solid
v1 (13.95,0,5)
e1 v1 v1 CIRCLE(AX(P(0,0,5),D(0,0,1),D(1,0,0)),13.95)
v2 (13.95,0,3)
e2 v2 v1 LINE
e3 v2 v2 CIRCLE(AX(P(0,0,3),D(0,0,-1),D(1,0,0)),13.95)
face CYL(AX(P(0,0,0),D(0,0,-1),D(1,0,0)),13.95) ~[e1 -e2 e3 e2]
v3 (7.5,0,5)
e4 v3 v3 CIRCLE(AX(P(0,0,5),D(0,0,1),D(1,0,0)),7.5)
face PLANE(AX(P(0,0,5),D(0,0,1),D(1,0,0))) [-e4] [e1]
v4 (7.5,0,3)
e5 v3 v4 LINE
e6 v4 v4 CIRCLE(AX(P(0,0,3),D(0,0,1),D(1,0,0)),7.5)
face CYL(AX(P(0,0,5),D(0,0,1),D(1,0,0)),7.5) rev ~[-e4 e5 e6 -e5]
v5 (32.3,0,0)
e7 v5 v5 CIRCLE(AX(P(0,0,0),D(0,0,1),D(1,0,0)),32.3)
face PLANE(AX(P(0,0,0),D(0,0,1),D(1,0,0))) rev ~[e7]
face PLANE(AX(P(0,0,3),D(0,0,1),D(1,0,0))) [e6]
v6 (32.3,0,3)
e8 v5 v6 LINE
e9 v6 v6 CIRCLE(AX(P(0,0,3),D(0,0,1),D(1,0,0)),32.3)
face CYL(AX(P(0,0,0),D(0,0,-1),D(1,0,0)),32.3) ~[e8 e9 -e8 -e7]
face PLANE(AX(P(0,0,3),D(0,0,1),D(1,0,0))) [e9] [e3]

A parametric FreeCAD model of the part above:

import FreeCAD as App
import Part
import Sketcher
from FreeCAD import Vector
Q = App.Units.Quantity

doc = App.newDocument("Part")
body = doc.addObject("PartDesign::Body", "Body")

# Sketch on XY plane
sketch1 = doc.addObject("Sketcher::SketchObject", "Sketch")
body.addObject(sketch1)
sketch1.AttachmentSupport = (doc.XY_Plane, [""])
sketch1.MapMode = "FlatFace"
sketch1.addGeometry(Part.Circle(Vector(0, 0, 0), Vector(0, 0, 1), 32.3), False)
sketch1.addConstraint([
    Sketcher.Constraint("Coincident", 0, 3, -1, 1),
    Sketcher.Constraint("Diameter", 0, Q("64.6 mm")),
])
pad1 = doc.addObject("PartDesign::Pad", "Pad")
body.addObject(pad1)
pad1.Profile = sketch1
pad1.Length = 3

# Sketch on XY plane
sketch2 = doc.addObject("Sketcher::SketchObject", "Sketch001")
body.addObject(sketch2)
sketch2.AttachmentSupport = (doc.XY_Plane, [""])
sketch2.MapMode = "FlatFace"
sketch2.addGeometry(Part.Circle(Vector(0, 0, 0), Vector(0, 0, 1), 13.95), False)
sketch2.addConstraint([
    Sketcher.Constraint("Coincident", 0, 3, -1, 1),
    Sketcher.Constraint("Diameter", 0, Q("27.9 mm")),
])
pad2 = doc.addObject("PartDesign::Pad", "Pad001")
body.addObject(pad2)
pad2.Profile = sketch2
pad2.Length = 5

# Sketch on XY plane
sketch3 = doc.addObject("Sketcher::SketchObject", "Sketch002")
body.addObject(sketch3)
sketch3.AttachmentSupport = (doc.XY_Plane, [""])
sketch3.MapMode = "FlatFace"
sketch3.AttachmentOffset = App.Placement(Vector(0, 0, 5), App.Rotation())
sketch3.addGeometry(Part.Circle(Vector(0, 0, 0), Vector(0, 0, 1), 7.5), False)
sketch3.addConstraint([
    Sketcher.Constraint("Coincident", 0, 3, -1, 1),
    Sketcher.Constraint("Diameter", 0, Q("15 mm")),
])
pocket1 = doc.addObject("PartDesign::Pocket", "Pocket")
body.addObject(pocket1)
pocket1.Profile = sketch3
pocket1.Length = 2

doc.recompute()
